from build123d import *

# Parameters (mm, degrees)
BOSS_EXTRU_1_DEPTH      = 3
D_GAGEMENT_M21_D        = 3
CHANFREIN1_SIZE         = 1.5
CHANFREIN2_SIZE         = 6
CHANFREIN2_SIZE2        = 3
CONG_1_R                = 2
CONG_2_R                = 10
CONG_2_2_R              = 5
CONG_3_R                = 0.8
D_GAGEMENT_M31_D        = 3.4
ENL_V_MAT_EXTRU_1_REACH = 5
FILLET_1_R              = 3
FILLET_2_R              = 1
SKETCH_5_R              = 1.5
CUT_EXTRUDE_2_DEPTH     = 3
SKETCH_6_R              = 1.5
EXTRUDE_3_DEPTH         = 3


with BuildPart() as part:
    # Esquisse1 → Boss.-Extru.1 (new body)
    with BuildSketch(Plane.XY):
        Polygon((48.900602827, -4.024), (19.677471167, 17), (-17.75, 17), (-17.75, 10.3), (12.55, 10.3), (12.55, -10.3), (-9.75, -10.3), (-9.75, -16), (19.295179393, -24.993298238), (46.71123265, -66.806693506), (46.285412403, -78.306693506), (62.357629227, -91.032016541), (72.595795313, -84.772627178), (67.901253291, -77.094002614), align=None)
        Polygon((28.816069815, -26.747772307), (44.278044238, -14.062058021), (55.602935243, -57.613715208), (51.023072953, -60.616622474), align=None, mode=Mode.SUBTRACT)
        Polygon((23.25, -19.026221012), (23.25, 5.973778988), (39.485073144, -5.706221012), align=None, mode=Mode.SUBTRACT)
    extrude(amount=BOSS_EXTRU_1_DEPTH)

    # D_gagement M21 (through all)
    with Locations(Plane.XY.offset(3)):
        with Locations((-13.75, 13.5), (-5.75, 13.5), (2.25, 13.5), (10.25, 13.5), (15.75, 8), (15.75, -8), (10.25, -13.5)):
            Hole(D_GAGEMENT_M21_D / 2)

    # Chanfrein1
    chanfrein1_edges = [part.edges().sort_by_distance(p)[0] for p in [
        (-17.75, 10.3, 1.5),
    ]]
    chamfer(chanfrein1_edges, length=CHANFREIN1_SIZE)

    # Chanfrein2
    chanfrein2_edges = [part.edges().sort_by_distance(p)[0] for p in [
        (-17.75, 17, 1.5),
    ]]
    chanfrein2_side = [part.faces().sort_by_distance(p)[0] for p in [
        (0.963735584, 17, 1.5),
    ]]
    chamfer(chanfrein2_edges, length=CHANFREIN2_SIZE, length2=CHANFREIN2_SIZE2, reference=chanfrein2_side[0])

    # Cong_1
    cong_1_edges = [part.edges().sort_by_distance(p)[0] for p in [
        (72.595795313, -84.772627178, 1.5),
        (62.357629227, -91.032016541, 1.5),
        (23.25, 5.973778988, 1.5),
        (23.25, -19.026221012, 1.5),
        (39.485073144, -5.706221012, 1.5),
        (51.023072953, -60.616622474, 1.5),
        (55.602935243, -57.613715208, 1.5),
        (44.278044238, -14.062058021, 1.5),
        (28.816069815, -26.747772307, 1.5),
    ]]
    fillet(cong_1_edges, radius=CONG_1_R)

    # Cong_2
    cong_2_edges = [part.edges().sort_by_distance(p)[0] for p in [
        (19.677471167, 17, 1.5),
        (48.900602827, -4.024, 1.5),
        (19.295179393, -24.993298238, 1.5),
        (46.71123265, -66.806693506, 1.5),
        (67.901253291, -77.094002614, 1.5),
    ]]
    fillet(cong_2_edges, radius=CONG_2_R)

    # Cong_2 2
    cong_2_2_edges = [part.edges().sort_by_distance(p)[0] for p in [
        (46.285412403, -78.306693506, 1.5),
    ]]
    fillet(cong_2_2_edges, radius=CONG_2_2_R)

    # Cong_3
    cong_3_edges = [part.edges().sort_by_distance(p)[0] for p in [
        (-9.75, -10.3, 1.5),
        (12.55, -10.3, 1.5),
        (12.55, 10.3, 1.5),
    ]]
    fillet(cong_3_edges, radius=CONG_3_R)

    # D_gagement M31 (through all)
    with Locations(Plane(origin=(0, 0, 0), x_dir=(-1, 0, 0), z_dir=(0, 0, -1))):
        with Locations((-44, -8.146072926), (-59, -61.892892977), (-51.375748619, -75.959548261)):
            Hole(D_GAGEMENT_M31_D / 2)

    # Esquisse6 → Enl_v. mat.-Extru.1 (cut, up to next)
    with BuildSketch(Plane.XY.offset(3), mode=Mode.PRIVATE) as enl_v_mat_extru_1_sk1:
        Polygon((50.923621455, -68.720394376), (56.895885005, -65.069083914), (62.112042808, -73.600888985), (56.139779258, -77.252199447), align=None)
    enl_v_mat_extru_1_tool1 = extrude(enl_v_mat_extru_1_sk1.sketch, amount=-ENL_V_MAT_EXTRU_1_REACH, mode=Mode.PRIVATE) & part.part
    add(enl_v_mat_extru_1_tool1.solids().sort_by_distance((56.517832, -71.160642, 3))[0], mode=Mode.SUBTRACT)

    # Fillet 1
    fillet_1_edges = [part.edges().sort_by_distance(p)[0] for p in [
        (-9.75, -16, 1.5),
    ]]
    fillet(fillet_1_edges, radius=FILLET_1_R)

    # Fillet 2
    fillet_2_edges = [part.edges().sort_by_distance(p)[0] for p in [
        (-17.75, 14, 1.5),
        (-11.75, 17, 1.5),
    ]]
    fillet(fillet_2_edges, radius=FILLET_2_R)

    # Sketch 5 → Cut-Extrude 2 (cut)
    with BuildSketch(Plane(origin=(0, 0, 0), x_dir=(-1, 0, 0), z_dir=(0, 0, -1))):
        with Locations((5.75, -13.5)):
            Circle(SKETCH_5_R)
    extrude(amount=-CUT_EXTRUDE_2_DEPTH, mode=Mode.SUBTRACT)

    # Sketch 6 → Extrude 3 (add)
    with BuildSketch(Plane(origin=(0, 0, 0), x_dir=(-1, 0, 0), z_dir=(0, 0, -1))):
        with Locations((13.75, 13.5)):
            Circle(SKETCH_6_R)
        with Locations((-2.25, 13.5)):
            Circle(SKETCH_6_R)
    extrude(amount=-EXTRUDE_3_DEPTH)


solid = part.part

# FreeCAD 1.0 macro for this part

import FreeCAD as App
import Part
import Sketcher
Q = App.Units.Quantity


def edges_at(feature, points):
    """Names of the edges that pass closest to the given points."""
    edges = feature.Shape.Edges
    near = lambda p: min(range(len(edges)), key=lambda i: edges[i].distToShape(Part.Vertex(*p))[0])
    return sorted({f"Edge{near(p) + 1}" for p in points})

doc = App.newDocument("Part")
params = doc.addObject("Spreadsheet::Sheet", "Params")
for row, (alias, value) in enumerate([
    ("sketch1_height", "25 mm"),
    ("sketch1_length", "36 mm"),
    ("sketch1_length2", "50 mm"),
    ("sketch1_length3", "12 mm"),
    ("sketch1_length4", "9 mm"),
    ("pad1_length", "3 mm"),
    ("sketch2_diameter", "3 mm"),
    ("hole_diameter", "3 mm"),
    ("chamfer_size", "1.5 mm"),
    ("chamfer2_size", "6 mm"),
    ("chamfer2_size2", "3 mm"),
    ("fillet_radius", "2 mm"),
    ("fillet2_radius", "10 mm"),
    ("fillet3_radius", "5 mm"),
    ("fillet4_radius", "0.8 mm"),
    ("sketch3_diameter", "3.4 mm"),
    ("hole2_diameter", "3.4 mm"),
    ("sketch4_length", "7 mm"),
    ("sketch4_length2", "10 mm"),
    ("fillet5_radius", "3 mm"),
    ("fillet6_radius", "1 mm"),
    ("sketch5_diameter", "3 mm"),
    ("pocket2_length", "3 mm"),
    ("sketch6_diameter", "3 mm"),
    ("pad2_length", "3 mm"),
], start=1):
    params.set(f"A{row}", alias)
    params.set(f"B{row}", "=" + value)
    params.setAlias(f"B{row}", alias)

body = doc.addObject("PartDesign::Body", "Body")

# Sketch on XY plane
sketch1 = body.newObject("Sketcher::SketchObject", "Sketch")
sketch1.AttachmentSupport = (doc.getObject("XY_Plane"), [""])
sketch1.MapMode = "FlatFace"
sketch1.addGeometry([
    Part.LineSegment(App.Vector(48.900603, -4.024, 0), App.Vector(19.677471, 17, 0)),  # 0
    Part.LineSegment(App.Vector(19.677471, 17, 0), App.Vector(-17.75, 17, 0)),  # 1
    Part.LineSegment(App.Vector(-17.75, 17, 0), App.Vector(-17.75, 10.3, 0)),  # 2
    Part.LineSegment(App.Vector(-17.75, 10.3, 0), App.Vector(12.55, 10.3, 0)),  # 3
    Part.LineSegment(App.Vector(12.55, 10.3, 0), App.Vector(12.55, -10.3, 0)),  # 4
    Part.LineSegment(App.Vector(12.55, -10.3, 0), App.Vector(-9.75, -10.3, 0)),  # 5
    Part.LineSegment(App.Vector(-9.75, -10.3, 0), App.Vector(-9.75, -16, 0)),  # 6
    Part.LineSegment(App.Vector(-9.75, -16, 0), App.Vector(19.295179, -24.993298, 0)),  # 7
    Part.LineSegment(App.Vector(19.295179, -24.993298, 0), App.Vector(46.711233, -66.806694, 0)),  # 8
    Part.LineSegment(App.Vector(46.711233, -66.806694, 0), App.Vector(46.285412, -78.306694, 0)),  # 9
    Part.LineSegment(App.Vector(46.285412, -78.306694, 0), App.Vector(62.357629, -91.032017, 0)),  # 10
    Part.LineSegment(App.Vector(62.357629, -91.032017, 0), App.Vector(72.595795, -84.772627, 0)),  # 11
    Part.LineSegment(App.Vector(72.595795, -84.772627, 0), App.Vector(67.901253, -77.094003, 0)),  # 12
    Part.LineSegment(App.Vector(67.901253, -77.094003, 0), App.Vector(48.900603, -4.024, 0)),  # 13
    Part.LineSegment(App.Vector(51.023073, -60.616622, 0), App.Vector(28.81607, -26.747772, 0)),  # 14
    Part.LineSegment(App.Vector(28.81607, -26.747772, 0), App.Vector(44.278044, -14.062058, 0)),  # 15
    Part.LineSegment(App.Vector(44.278044, -14.062058, 0), App.Vector(55.602935, -57.613715, 0)),  # 16
    Part.LineSegment(App.Vector(55.602935, -57.613715, 0), App.Vector(51.023073, -60.616622, 0)),  # 17
    Part.LineSegment(App.Vector(39.485073, -5.706221, 0), App.Vector(23.25, -19.026221, 0)),  # 18
    Part.LineSegment(App.Vector(23.25, -19.026221, 0), App.Vector(23.25, 5.973779, 0)),  # 19
    Part.LineSegment(App.Vector(23.25, 5.973779, 0), App.Vector(39.485073, -5.706221, 0)),  # 20
], False)
sketch1.addConstraint([
    Sketcher.Constraint("Coincident", 0, 2, 1, 1),
    Sketcher.Constraint("Coincident", 1, 2, 2, 1),
    Sketcher.Constraint("Coincident", 2, 2, 3, 1),
    Sketcher.Constraint("Coincident", 3, 2, 4, 1),
    Sketcher.Constraint("Coincident", 4, 2, 5, 1),
    Sketcher.Constraint("Coincident", 5, 2, 6, 1),
    Sketcher.Constraint("Coincident", 6, 2, 7, 1),
    Sketcher.Constraint("Coincident", 7, 2, 8, 1),
    Sketcher.Constraint("Coincident", 8, 2, 9, 1),
    Sketcher.Constraint("Coincident", 9, 2, 10, 1),
    Sketcher.Constraint("Coincident", 10, 2, 11, 1),
    Sketcher.Constraint("Coincident", 11, 2, 12, 1),
    Sketcher.Constraint("Coincident", 12, 2, 13, 1),
    Sketcher.Constraint("Coincident", 13, 2, 0, 1),
    Sketcher.Constraint("Coincident", 14, 2, 15, 1),
    Sketcher.Constraint("Coincident", 15, 2, 16, 1),
    Sketcher.Constraint("Coincident", 16, 2, 17, 1),
    Sketcher.Constraint("Coincident", 17, 2, 14, 1),
    Sketcher.Constraint("Coincident", 18, 2, 19, 1),
    Sketcher.Constraint("Coincident", 19, 2, 20, 1),
    Sketcher.Constraint("Coincident", 20, 2, 18, 1),
    Sketcher.Constraint("Horizontal", 1),
    Sketcher.Constraint("Vertical", 2),
    Sketcher.Constraint("Horizontal", 3),
    Sketcher.Constraint("Vertical", 4),
    Sketcher.Constraint("Horizontal", 5),
    Sketcher.Constraint("Vertical", 6),
    Sketcher.Constraint("Vertical", 19),
    Sketcher.Constraint("Perpendicular", 11, 12),
    Sketcher.Constraint("Parallel", 8, 14),
    Sketcher.Constraint("Parallel", 13, 16),
    Sketcher.Constraint("Perpendicular", 14, 17),
    Sketcher.Constraint("Parallel", 15, 18),
    Sketcher.Constraint("Parallel", 0, 20),
    Sketcher.Constraint("Equal", 15, 20),
    Sketcher.Constraint("DistanceY", 19, 1, 19, 2, Q("25 mm")),
    Sketcher.Constraint("Distance", 0, Q("36 mm")),
    Sketcher.Constraint("Distance", 8, Q("50 mm")),
    Sketcher.Constraint("Distance", 11, Q("12 mm")),
    Sketcher.Constraint("Distance", 12, Q("9 mm")),
    Sketcher.Constraint("Distance", 15, Q("20 mm")),
    Sketcher.Constraint("Distance", 16, Q("45 mm")),
    Sketcher.Constraint("Distance", 18, Q("21 mm")),
    Sketcher.Constraint("DistanceX", 3, 1, 3, 2, Q("30.3 mm")),
    Sketcher.Constraint("DistanceX", 5, 2, 5, 1, Q("22.3 mm")),
    Sketcher.Constraint("DistanceY", 2, 2, 2, 1, Q("6.7 mm")),
    Sketcher.Constraint("DistanceY", 4, 2, 4, 1, Q("20.6 mm")),
    Sketcher.Constraint("DistanceY", 6, 2, 6, 1, Q("5.7 mm")),
    Sketcher.Constraint("DistanceY", -1, 1, 0, 2, Q("17 mm")),
    Sketcher.Constraint("Distance", 10, Q("20.5 mm")),
    Sketcher.Constraint("Distance", 13, Q("75.5 mm")),
    Sketcher.Constraint("Distance", 14, Q("40.5 mm")),
    Sketcher.Constraint("DistanceY", 9, 2, 8, 2, Q("11.5 mm")),
    Sketcher.Constraint("DistanceX", 4, 2, 18, 2, Q("10.7 mm")),
    Sketcher.Constraint("DistanceX", 1, 2, -1, 1, Q("17.75 mm")),
    Sketcher.Constraint("DistanceX", 1, 2, 1, 1, Q("37.427471 mm")),
    Sketcher.Constraint("DistanceY", 7, 2, -1, 1, Q("24.993298 mm")),
    Sketcher.Constraint("DistanceY", 10, 2, 16, 2, Q("33.418301 mm")),
    Sketcher.Constraint("Distance", 9, Q("11.507881 mm")),
    Sketcher.Constraint("Distance", 17, Q("5.476549 mm")),
    Sketcher.Constraint("DistanceX", -1, 1, 7, 2, Q("19.295179 mm")),
    Sketcher.Constraint("DistanceX", -1, 1, 14, 2, Q("28.81607 mm")),
    Sketcher.Constraint("DistanceY", 18, 2, -1, 1, Q("19.026221 mm")),
])
sketch1.setExpression("Constraints[35]", "Params.sketch1_height")
sketch1.setExpression("Constraints[36]", "Params.sketch1_length")
sketch1.setExpression("Constraints[37]", "Params.sketch1_length2")
sketch1.setExpression("Constraints[38]", "Params.sketch1_length3")
sketch1.setExpression("Constraints[39]", "Params.sketch1_length4")
pad1 = body.newObject("PartDesign::Pad", "Pad")
pad1.Profile = sketch1
pad1.setExpression("Length", "Params.pad1_length")

# Sketch on XY plane
sketch2 = body.newObject("Sketcher::SketchObject", "Sketch001")
sketch2.AttachmentSupport = (doc.getObject("XY_Plane"), [""])
sketch2.MapMode = "FlatFace"
sketch2.AttachmentOffset = App.Placement(App.Vector(0, 0, 3), App.Rotation())
sketch2.addGeometry([
    Part.Circle(App.Vector(-13.75, 13.5, 0), App.Vector(0, 0, 1), 1.5),  # 0
    Part.Circle(App.Vector(-5.75, 13.5, 0), App.Vector(0, 0, 1), 1.5),  # 1
    Part.Circle(App.Vector(2.25, 13.5, 0), App.Vector(0, 0, 1), 1.5),  # 2
    Part.Circle(App.Vector(10.25, 13.5, 0), App.Vector(0, 0, 1), 1.5),  # 3
    Part.Circle(App.Vector(15.75, 8, 0), App.Vector(0, 0, 1), 1.5),  # 4
    Part.Circle(App.Vector(15.75, -8, 0), App.Vector(0, 0, 1), 1.5),  # 5
    Part.Circle(App.Vector(10.25, -13.5, 0), App.Vector(0, 0, 1), 1.5),  # 6
], False)
sketch2.addConstraint([
    Sketcher.Constraint("Equal", 0, 1),
    Sketcher.Constraint("Equal", 1, 2),
    Sketcher.Constraint("Equal", 2, 3),
    Sketcher.Constraint("Equal", 3, 4),
    Sketcher.Constraint("Equal", 4, 5),
    Sketcher.Constraint("Equal", 5, 6),
    Sketcher.Constraint("Symmetric", 4, 3, 5, 3, -1),
    Sketcher.Constraint("Symmetric", 3, 3, 6, 3, -1),
    Sketcher.Constraint("Horizontal", 0, 3, 1, 3),
    Sketcher.Constraint("Horizontal", 1, 3, 2, 3),
    Sketcher.Constraint("Horizontal", 2, 3, 3, 3),
    Sketcher.Constraint("Diameter", 0, Q("3 mm")),
    Sketcher.Constraint("DistanceY", -1, 1, 4, 3, Q("8 mm")),
    Sketcher.Constraint("DistanceX", 0, 3, 1, 3, Q("8 mm")),
    Sketcher.Constraint("DistanceX", 1, 3, 2, 3, Q("8 mm")),
    Sketcher.Constraint("DistanceX", 2, 3, 3, 3, Q("8 mm")),
    Sketcher.Constraint("DistanceY", 6, 3, 3, 3, Q("27 mm")),
    Sketcher.Constraint("DistanceX", 3, 3, 4, 3, Q("5.5 mm")),
    Sketcher.Constraint("DistanceX", 0, 3, -1, 1, Q("13.75 mm")),
])
sketch2.setExpression("Constraints[11]", "Params.sketch2_diameter")
doc.recompute()
hole = body.newObject("PartDesign::Hole", "Hole")
hole.Profile = sketch2
hole.ThreadType = "None"
hole.setExpression("Diameter", "Params.hole_diameter")
hole.DepthType = "ThroughAll"
doc.recompute()

chamfer = body.newObject("PartDesign::Chamfer", "Chamfer")
chamfer.Base = (hole, edges_at(hole, [(-17.75, 10.3, 1.5)]))
chamfer.setExpression("Size", "Params.chamfer_size")
doc.recompute()

chamfer2 = body.newObject("PartDesign::Chamfer", "Chamfer001")
chamfer2.Base = (chamfer, edges_at(chamfer, [(-17.75, 17, 1.5)]))
chamfer2.ChamferType = "Two distances"
chamfer2.setExpression("Size", "Params.chamfer2_size")
chamfer2.setExpression("Size2", "Params.chamfer2_size2")
chamfer2.FlipDirection = True
doc.recompute()

fillet = body.newObject("PartDesign::Fillet", "Fillet")
fillet.Base = (chamfer2, edges_at(chamfer2, [
    (72.596, -84.773, 1.5),
    (62.358, -91.032, 1.5),
    (23.25, 5.974, 1.5),
    (23.25, -19.026, 1.5),
    (39.485, -5.706, 1.5),
    (51.023, -60.617, 1.5),
    (55.603, -57.614, 1.5),
    (44.278, -14.062, 1.5),
    (28.816, -26.748, 1.5),
]))
fillet.setExpression("Radius", "Params.fillet_radius")
doc.recompute()

fillet2 = body.newObject("PartDesign::Fillet", "Fillet001")
fillet2.Base = (fillet, edges_at(fillet, [
    (19.677, 17, 1.5),
    (48.901, -4.024, 1.5),
    (19.295, -24.993, 1.5),
    (46.711, -66.807, 1.5),
    (67.901, -77.094, 1.5),
]))
fillet2.setExpression("Radius", "Params.fillet2_radius")
doc.recompute()

fillet3 = body.newObject("PartDesign::Fillet", "Fillet002")
fillet3.Base = (fillet2, edges_at(fillet2, [(46.285, -78.307, 1.5)]))
fillet3.setExpression("Radius", "Params.fillet3_radius")
doc.recompute()

fillet4 = body.newObject("PartDesign::Fillet", "Fillet003")
fillet4.Base = (fillet3, edges_at(fillet3, [(-9.75, -10.3, 1.5), (12.55, -10.3, 1.5), (12.55, 10.3, 1.5)]))
fillet4.setExpression("Radius", "Params.fillet4_radius")

# Sketch on XY plane
sketch3 = body.newObject("Sketcher::SketchObject", "Sketch002")
sketch3.AttachmentSupport = (doc.getObject("XY_Plane"), [""])
sketch3.MapMode = "FlatFace"
sketch3.addGeometry([
    Part.Circle(App.Vector(44, -8.146073, 0), App.Vector(0, 0, 1), 1.7),
    Part.Circle(App.Vector(59, -61.892893, 0), App.Vector(0, 0, 1), 1.7),
    Part.Circle(App.Vector(51.375749, -75.959548, 0), App.Vector(0, 0, 1), 1.7),
], False)
sketch3.addConstraint([
    Sketcher.Constraint("Equal", 0, 1),
    Sketcher.Constraint("Equal", 1, 2),
    Sketcher.Constraint("Diameter", 0, Q("3.4 mm")),
    Sketcher.Constraint("DistanceX", -1, 1, 0, 3, Q("44 mm")),
    Sketcher.Constraint("DistanceX", -1, 1, 1, 3, Q("59 mm")),
    Sketcher.Constraint("DistanceX", -1, 1, 2, 3, Q("51.375749 mm")),
    Sketcher.Constraint("DistanceY", 2, 3, -1, 1, Q("75.959548 mm")),
    Sketcher.Constraint("DistanceY", 1, 3, 0, 3, Q("53.74682 mm")),
    Sketcher.Constraint("DistanceY", 0, 3, -1, 1, Q("8.146073 mm")),
])
sketch3.setExpression("Constraints[2]", "Params.sketch3_diameter")
doc.recompute()
hole2 = body.newObject("PartDesign::Hole", "Hole001")
hole2.Profile = sketch3
hole2.ThreadType = "None"
hole2.setExpression("Diameter", "Params.hole2_diameter")
hole2.DepthType = "ThroughAll"
hole2.Reversed = True

# Sketch on XY plane
sketch4 = body.newObject("Sketcher::SketchObject", "Sketch003")
sketch4.AttachmentSupport = (doc.getObject("XY_Plane"), [""])
sketch4.MapMode = "FlatFace"
sketch4.AttachmentOffset = App.Placement(App.Vector(0, 0, 3), App.Rotation())
sketch4.addGeometry([
    Part.LineSegment(App.Vector(56.895885, -65.069084, 0), App.Vector(50.923621, -68.720394, 0)),
    Part.LineSegment(App.Vector(50.923621, -68.720394, 0), App.Vector(56.139779, -77.252199, 0)),
    Part.LineSegment(App.Vector(56.139779, -77.252199, 0), App.Vector(62.112043, -73.600889, 0)),
    Part.LineSegment(App.Vector(62.112043, -73.600889, 0), App.Vector(56.895885, -65.069084, 0)),
], False)
sketch4.addConstraint([
    Sketcher.Constraint("Coincident", 0, 2, 1, 1),
    Sketcher.Constraint("Coincident", 1, 2, 2, 1),
    Sketcher.Constraint("Coincident", 2, 2, 3, 1),
    Sketcher.Constraint("Coincident", 3, 2, 0, 1),
    Sketcher.Constraint("Perpendicular", 0, 1),
    Sketcher.Constraint("Perpendicular", 1, 2),
    Sketcher.Constraint("Perpendicular", 2, 3),
    Sketcher.Constraint("Distance", 0, Q("7 mm")),
    Sketcher.Constraint("Distance", 1, Q("10 mm")),
    Sketcher.Constraint("DistanceY", 1, 2, -1, 1, Q("77.252199 mm")),
    Sketcher.Constraint("DistanceX", -1, 1, 0, 2, Q("50.923621 mm")),
    Sketcher.Constraint("DistanceX", -1, 1, 1, 2, Q("56.139779 mm")),
])
sketch4.setExpression("Constraints[7]", "Params.sketch4_length")
sketch4.setExpression("Constraints[8]", "Params.sketch4_length2")
pocket1 = body.newObject("PartDesign::Pocket", "Pocket")
pocket1.Profile = sketch4
pocket1.Type = "UpToFirst"
doc.recompute()

fillet5 = body.newObject("PartDesign::Fillet", "Fillet004")
fillet5.Base = (pocket1, edges_at(pocket1, [(-9.75, -16, 1.5)]))
fillet5.setExpression("Radius", "Params.fillet5_radius")
doc.recompute()

fillet6 = body.newObject("PartDesign::Fillet", "Fillet005")
fillet6.Base = (fillet5, edges_at(fillet5, [(-17.75, 14, 1.5), (-11.75, 17, 1.5)]))
fillet6.setExpression("Radius", "Params.fillet6_radius")

# Sketch on XY plane
sketch5 = body.newObject("Sketcher::SketchObject", "Sketch004")
sketch5.AttachmentSupport = (doc.getObject("XY_Plane"), [""])
sketch5.MapMode = "FlatFace"
sketch5.addGeometry(Part.Circle(App.Vector(-5.75, -13.5, 0), App.Vector(0, 0, 1), 1.5), False)
sketch5.addConstraint([
    Sketcher.Constraint("Diameter", 0, Q("3 mm")),
    Sketcher.Constraint("DistanceY", 0, 3, -1, 1, Q("13.5 mm")),
    Sketcher.Constraint("DistanceX", 0, 3, -1, 1, Q("5.75 mm")),
])
sketch5.setExpression("Constraints[0]", "Params.sketch5_diameter")
pocket2 = body.newObject("PartDesign::Pocket", "Pocket001")
pocket2.Profile = sketch5
pocket2.setExpression("Length", "Params.pocket2_length")
pocket2.Reversed = True

# Sketch on XY plane
sketch6 = body.newObject("Sketcher::SketchObject", "Sketch005")
sketch6.AttachmentSupport = (doc.getObject("XY_Plane"), [""])
sketch6.MapMode = "FlatFace"
sketch6.addGeometry([
    Part.Circle(App.Vector(-13.75, 13.5, 0), App.Vector(0, 0, 1), 1.5),
    Part.Circle(App.Vector(2.25, 13.5, 0), App.Vector(0, 0, 1), 1.5),
], False)
sketch6.addConstraint([
    Sketcher.Constraint("Equal", 0, 1),
    Sketcher.Constraint("Horizontal", 0, 3, 1, 3),
    Sketcher.Constraint("Diameter", 0, Q("3 mm")),
    Sketcher.Constraint("DistanceX", 0, 3, 1, 3, Q("16 mm")),
    Sketcher.Constraint("DistanceY", -1, 1, 0, 3, Q("13.5 mm")),
    Sketcher.Constraint("DistanceX", 0, 3, -1, 1, Q("13.75 mm")),
])
sketch6.setExpression("Constraints[2]", "Params.sketch6_diameter")
pad2 = body.newObject("PartDesign::Pad", "Pad001")
pad2.Profile = sketch6
pad2.setExpression("Length", "Params.pad2_length")

doc.recompute()
